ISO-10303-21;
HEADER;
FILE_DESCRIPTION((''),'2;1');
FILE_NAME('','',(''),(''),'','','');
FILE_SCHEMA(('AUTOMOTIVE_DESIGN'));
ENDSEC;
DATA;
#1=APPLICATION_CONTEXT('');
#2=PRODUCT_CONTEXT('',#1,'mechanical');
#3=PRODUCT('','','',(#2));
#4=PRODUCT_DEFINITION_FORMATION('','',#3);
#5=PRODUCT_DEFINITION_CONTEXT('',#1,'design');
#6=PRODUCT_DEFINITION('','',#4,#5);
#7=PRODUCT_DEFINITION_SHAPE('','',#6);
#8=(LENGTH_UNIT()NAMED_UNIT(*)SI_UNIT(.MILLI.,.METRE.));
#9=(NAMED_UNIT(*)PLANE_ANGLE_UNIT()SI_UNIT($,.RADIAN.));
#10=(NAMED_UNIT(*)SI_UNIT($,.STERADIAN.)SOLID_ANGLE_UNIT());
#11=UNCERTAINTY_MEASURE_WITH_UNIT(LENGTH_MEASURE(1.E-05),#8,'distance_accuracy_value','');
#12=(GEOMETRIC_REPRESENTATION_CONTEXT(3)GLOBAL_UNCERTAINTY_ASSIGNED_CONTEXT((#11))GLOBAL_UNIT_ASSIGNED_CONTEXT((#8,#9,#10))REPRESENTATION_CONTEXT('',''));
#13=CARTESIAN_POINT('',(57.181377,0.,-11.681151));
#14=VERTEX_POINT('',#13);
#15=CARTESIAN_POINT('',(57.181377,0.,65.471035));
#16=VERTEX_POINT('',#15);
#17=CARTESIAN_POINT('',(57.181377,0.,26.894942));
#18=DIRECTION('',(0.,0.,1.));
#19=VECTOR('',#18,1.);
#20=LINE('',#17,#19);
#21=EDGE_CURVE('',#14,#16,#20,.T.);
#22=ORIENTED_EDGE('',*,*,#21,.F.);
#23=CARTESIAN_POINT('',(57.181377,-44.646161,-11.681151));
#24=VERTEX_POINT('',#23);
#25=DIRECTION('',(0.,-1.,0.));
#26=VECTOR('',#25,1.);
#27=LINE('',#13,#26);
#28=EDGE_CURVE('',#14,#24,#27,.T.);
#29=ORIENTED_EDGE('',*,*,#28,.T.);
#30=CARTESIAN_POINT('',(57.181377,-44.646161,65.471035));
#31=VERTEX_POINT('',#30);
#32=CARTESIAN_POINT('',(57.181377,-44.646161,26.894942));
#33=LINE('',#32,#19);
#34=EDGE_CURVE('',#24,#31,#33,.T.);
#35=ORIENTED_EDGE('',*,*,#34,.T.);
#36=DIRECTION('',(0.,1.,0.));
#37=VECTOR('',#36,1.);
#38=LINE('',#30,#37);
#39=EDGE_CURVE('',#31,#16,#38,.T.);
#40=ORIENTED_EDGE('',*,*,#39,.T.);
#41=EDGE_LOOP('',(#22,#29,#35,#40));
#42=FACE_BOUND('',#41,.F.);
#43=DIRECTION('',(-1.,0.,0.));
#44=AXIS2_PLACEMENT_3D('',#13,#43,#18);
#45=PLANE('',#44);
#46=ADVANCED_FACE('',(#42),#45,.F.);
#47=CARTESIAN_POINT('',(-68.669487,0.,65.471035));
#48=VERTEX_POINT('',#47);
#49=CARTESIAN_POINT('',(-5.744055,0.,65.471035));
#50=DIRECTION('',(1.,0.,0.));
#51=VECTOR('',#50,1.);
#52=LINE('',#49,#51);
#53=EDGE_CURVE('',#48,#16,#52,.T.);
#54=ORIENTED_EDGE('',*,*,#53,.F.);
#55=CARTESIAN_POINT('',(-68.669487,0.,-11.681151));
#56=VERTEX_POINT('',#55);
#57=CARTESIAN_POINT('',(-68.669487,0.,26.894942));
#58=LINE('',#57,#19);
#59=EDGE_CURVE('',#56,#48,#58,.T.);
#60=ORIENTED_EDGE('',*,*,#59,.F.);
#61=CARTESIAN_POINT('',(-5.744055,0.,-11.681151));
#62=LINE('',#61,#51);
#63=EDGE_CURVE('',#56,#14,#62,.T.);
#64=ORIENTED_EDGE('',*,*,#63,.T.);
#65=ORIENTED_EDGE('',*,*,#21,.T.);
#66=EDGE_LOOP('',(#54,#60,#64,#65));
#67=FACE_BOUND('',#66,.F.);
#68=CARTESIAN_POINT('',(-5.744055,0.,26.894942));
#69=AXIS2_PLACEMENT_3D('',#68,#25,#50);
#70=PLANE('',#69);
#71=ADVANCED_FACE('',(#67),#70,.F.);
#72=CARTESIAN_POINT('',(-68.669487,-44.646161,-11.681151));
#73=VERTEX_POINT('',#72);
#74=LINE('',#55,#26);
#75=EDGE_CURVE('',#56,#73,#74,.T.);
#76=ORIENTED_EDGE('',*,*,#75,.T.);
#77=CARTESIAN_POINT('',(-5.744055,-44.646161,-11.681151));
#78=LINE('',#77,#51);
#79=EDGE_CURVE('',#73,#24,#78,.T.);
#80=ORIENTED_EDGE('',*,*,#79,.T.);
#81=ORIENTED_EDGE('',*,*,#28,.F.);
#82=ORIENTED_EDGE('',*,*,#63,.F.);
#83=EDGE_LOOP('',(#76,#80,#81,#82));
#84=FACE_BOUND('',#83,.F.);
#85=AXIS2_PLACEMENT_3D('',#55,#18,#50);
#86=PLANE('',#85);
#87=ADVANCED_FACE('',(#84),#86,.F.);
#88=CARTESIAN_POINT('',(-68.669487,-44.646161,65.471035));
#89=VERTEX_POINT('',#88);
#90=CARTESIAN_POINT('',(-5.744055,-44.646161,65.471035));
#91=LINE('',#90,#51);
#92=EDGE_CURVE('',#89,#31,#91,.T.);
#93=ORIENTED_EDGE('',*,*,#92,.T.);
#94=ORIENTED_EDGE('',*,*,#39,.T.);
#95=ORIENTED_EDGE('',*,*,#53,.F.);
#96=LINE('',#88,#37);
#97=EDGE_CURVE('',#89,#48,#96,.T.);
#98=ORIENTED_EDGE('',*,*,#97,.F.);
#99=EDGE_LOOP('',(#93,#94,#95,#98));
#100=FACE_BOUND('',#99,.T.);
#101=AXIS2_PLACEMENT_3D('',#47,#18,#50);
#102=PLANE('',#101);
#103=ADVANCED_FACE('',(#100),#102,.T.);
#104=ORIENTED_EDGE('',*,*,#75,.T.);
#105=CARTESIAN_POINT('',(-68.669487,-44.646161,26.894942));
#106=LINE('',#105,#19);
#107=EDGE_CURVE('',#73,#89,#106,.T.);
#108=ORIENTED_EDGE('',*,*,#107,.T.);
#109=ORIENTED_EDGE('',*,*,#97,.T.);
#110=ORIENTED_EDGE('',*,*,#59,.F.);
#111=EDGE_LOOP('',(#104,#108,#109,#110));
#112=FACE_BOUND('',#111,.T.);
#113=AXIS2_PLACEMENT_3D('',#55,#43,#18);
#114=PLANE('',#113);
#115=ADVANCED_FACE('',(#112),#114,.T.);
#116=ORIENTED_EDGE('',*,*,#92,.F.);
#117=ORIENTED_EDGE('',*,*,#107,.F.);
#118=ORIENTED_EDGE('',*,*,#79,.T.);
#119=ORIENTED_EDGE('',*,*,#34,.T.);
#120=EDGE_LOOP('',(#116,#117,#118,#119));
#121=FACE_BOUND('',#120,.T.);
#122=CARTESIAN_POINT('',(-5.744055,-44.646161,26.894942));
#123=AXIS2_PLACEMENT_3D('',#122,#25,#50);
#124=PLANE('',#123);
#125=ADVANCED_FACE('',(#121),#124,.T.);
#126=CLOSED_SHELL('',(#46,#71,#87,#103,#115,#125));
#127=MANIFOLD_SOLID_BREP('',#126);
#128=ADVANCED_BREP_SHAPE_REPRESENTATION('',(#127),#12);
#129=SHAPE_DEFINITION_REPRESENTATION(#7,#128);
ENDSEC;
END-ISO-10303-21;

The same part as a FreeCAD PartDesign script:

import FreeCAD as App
import Part
import Sketcher
from FreeCAD import Vector
Q = App.Units.Quantity


def add_polygon(sketch, points):
    """Adds a closed chain of lines whose ends are joined by coincident constraints."""
    first, n = sketch.GeometryCount, len(points)
    for a, b in zip(points, points[1:] + points[:1]):
        sketch.addGeometry(Part.LineSegment(App.Vector(*a, 0), App.Vector(*b, 0)), False)
    for i in range(n):
        sketch.addConstraint(Sketcher.Constraint("Coincident", first + i, 2, first + (i + 1) % n, 1))

doc = App.newDocument("Part")
body = doc.addObject("PartDesign::Body", "Body")

# Sketch on XZ plane
sketch1 = body.newObject("Sketcher::SketchObject", "Sketch")
sketch1.AttachmentSupport = (doc.getObject("XZ_Plane"), [""])
sketch1.MapMode = "FlatFace"
add_polygon(sketch1, [(-69, 65), (-69, -12), (57, -12), (57, 65)])  # lines 0-3
sketch1.addConstraint([
    Sketcher.Constraint("Vertical", 0),
    Sketcher.Constraint("Horizontal", 1),
    Sketcher.Constraint("Vertical", 2),
    Sketcher.Constraint("Horizontal", 3),
    Sketcher.Constraint("DistanceY", -1, 1, 2, 2, Q("2.5775998 in")),
    Sketcher.Constraint("DistanceX", 1, 1, 1, 2, Q("125.850864 mm")),
    Sketcher.Constraint("DistanceY", 0, 2, 0, 1, Q("77.152186 mm")),
    Sketcher.Constraint("DistanceX", 0, 2, -1, 1, Q("68.669487 mm")),
])
pad1 = body.newObject("PartDesign::Pad", "Pad")
pad1.Profile = sketch1
pad1.Length = Q("1 in")

# Sketch on XZ plane
sketch2 = body.newObject("Sketcher::SketchObject", "Sketch001")
sketch2.AttachmentSupport = (doc.getObject("XZ_Plane"), [""])
sketch2.MapMode = "FlatFace"
add_polygon(sketch2, [(-69, 65), (-69, -12), (57, -12), (57, 65)])  # lines 0-3
sketch2.addConstraint([
    Sketcher.Constraint("Vertical", 0),
    Sketcher.Constraint("Horizontal", 1),
    Sketcher.Constraint("Vertical", 2),
    Sketcher.Constraint("Horizontal", 3),
    Sketcher.Constraint("DistanceY", -1, 1, 2, 2, Q("2.5775998 in")),
    Sketcher.Constraint("DistanceX", 1, 1, 1, 2, Q("125.850864 mm")),
    Sketcher.Constraint("DistanceY", 0, 2, 0, 1, Q("77.152186 mm")),
    Sketcher.Constraint("DistanceX", 0, 2, -1, 1, Q("68.669487 mm")),
])
pad2 = body.newObject("PartDesign::Pad", "Pad001")
pad2.Profile = sketch2
pad2.Length = 44.646161

doc.recompute()
